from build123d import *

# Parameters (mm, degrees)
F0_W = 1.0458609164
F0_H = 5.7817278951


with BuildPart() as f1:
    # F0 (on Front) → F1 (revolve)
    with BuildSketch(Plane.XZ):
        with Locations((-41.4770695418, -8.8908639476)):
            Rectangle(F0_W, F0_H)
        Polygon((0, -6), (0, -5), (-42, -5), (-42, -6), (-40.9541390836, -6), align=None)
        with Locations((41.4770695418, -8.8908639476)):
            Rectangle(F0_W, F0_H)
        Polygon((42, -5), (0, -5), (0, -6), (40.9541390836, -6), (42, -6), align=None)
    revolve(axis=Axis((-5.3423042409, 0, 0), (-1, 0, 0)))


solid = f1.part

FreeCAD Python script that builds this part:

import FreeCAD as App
import Part
import Sketcher

V = App.Vector
Q = App.Units.Quantity

doc = App.newDocument("Part")
body = doc.addObject("PartDesign::Body", "Body")

# Sketch on XZ plane
sketch1 = body.newObject("Sketcher::SketchObject", "Sketch")
sketch1.AttachmentSupport = (doc.getObject("XZ_Plane"), [""])
sketch1.MapMode = "FlatFace"
sketch1.addGeometry(Part.LineSegment(V(-42, -11.8, 0), V(-41, -11.8, 0)), False)
sketch1.addGeometry(Part.LineSegment(V(-41, -11.8, 0), V(-41, -6, 0)), False)
sketch1.addGeometry(Part.LineSegment(V(-41, -6, 0), V(41, -6, 0)), False)
sketch1.addGeometry(Part.LineSegment(V(41, -6, 0), V(41, -11.8, 0)), False)
sketch1.addGeometry(Part.LineSegment(V(41, -11.8, 0), V(42, -11.8, 0)), False)
sketch1.addGeometry(Part.LineSegment(V(42, -11.8, 0), V(42, -5, 0)), False)
sketch1.addGeometry(Part.LineSegment(V(42, -5, 0), V(-42, -5, 0)), False)
sketch1.addGeometry(Part.LineSegment(V(-42, -5, 0), V(-42, -11.8, 0)), False)
sketch1.addConstraint(Sketcher.Constraint("Coincident", 0, 2, 1, 1))
sketch1.addConstraint(Sketcher.Constraint("Coincident", 1, 2, 2, 1))
sketch1.addConstraint(Sketcher.Constraint("Coincident", 2, 2, 3, 1))
sketch1.addConstraint(Sketcher.Constraint("Coincident", 3, 2, 4, 1))
sketch1.addConstraint(Sketcher.Constraint("Coincident", 4, 2, 5, 1))
sketch1.addConstraint(Sketcher.Constraint("Coincident", 5, 2, 6, 1))
sketch1.addConstraint(Sketcher.Constraint("Coincident", 6, 2, 7, 1))
sketch1.addConstraint(Sketcher.Constraint("Coincident", 7, 2, 0, 1))
sketch1.addConstraint(Sketcher.Constraint("Horizontal", 0))
sketch1.addConstraint(Sketcher.Constraint("Vertical", 1))
sketch1.addConstraint(Sketcher.Constraint("Horizontal", 2))
sketch1.addConstraint(Sketcher.Constraint("Vertical", 3))
sketch1.addConstraint(Sketcher.Constraint("Horizontal", 4))
sketch1.addConstraint(Sketcher.Constraint("Vertical", 5))
sketch1.addConstraint(Sketcher.Constraint("Horizontal", 6))
sketch1.addConstraint(Sketcher.Constraint("Vertical", 7))
sketch1.addConstraint(Sketcher.Constraint("Symmetric", 0, 2, 3, 2, -2))
sketch1.addConstraint(Sketcher.Constraint("Equal", 0, 4))
sketch1.addConstraint(Sketcher.Constraint("DistanceX", 6, 2, 6, 1, Q("84 mm")))
sketch1.addConstraint(Sketcher.Constraint("DistanceY", 1, 2, -1, 1, Q("6 mm")))
sketch1.addConstraint(Sketcher.Constraint("DistanceY", 5, 2, -1, 1, Q("5 mm")))
sketch1.addConstraint(Sketcher.Constraint("DistanceX", 0, 1, 0, 2, Q("1.045861 mm")))
sketch1.addConstraint(Sketcher.Constraint("DistanceY", 1, 1, 1, 2, Q("5.781728 mm")))
revolution = body.newObject("PartDesign::Revolution", "Revolution")
revolution.Profile = sketch1
revolution.ReferenceAxis = (sketch1, ["H_Axis"])
revolution.Angle = 360

doc.recompute()
